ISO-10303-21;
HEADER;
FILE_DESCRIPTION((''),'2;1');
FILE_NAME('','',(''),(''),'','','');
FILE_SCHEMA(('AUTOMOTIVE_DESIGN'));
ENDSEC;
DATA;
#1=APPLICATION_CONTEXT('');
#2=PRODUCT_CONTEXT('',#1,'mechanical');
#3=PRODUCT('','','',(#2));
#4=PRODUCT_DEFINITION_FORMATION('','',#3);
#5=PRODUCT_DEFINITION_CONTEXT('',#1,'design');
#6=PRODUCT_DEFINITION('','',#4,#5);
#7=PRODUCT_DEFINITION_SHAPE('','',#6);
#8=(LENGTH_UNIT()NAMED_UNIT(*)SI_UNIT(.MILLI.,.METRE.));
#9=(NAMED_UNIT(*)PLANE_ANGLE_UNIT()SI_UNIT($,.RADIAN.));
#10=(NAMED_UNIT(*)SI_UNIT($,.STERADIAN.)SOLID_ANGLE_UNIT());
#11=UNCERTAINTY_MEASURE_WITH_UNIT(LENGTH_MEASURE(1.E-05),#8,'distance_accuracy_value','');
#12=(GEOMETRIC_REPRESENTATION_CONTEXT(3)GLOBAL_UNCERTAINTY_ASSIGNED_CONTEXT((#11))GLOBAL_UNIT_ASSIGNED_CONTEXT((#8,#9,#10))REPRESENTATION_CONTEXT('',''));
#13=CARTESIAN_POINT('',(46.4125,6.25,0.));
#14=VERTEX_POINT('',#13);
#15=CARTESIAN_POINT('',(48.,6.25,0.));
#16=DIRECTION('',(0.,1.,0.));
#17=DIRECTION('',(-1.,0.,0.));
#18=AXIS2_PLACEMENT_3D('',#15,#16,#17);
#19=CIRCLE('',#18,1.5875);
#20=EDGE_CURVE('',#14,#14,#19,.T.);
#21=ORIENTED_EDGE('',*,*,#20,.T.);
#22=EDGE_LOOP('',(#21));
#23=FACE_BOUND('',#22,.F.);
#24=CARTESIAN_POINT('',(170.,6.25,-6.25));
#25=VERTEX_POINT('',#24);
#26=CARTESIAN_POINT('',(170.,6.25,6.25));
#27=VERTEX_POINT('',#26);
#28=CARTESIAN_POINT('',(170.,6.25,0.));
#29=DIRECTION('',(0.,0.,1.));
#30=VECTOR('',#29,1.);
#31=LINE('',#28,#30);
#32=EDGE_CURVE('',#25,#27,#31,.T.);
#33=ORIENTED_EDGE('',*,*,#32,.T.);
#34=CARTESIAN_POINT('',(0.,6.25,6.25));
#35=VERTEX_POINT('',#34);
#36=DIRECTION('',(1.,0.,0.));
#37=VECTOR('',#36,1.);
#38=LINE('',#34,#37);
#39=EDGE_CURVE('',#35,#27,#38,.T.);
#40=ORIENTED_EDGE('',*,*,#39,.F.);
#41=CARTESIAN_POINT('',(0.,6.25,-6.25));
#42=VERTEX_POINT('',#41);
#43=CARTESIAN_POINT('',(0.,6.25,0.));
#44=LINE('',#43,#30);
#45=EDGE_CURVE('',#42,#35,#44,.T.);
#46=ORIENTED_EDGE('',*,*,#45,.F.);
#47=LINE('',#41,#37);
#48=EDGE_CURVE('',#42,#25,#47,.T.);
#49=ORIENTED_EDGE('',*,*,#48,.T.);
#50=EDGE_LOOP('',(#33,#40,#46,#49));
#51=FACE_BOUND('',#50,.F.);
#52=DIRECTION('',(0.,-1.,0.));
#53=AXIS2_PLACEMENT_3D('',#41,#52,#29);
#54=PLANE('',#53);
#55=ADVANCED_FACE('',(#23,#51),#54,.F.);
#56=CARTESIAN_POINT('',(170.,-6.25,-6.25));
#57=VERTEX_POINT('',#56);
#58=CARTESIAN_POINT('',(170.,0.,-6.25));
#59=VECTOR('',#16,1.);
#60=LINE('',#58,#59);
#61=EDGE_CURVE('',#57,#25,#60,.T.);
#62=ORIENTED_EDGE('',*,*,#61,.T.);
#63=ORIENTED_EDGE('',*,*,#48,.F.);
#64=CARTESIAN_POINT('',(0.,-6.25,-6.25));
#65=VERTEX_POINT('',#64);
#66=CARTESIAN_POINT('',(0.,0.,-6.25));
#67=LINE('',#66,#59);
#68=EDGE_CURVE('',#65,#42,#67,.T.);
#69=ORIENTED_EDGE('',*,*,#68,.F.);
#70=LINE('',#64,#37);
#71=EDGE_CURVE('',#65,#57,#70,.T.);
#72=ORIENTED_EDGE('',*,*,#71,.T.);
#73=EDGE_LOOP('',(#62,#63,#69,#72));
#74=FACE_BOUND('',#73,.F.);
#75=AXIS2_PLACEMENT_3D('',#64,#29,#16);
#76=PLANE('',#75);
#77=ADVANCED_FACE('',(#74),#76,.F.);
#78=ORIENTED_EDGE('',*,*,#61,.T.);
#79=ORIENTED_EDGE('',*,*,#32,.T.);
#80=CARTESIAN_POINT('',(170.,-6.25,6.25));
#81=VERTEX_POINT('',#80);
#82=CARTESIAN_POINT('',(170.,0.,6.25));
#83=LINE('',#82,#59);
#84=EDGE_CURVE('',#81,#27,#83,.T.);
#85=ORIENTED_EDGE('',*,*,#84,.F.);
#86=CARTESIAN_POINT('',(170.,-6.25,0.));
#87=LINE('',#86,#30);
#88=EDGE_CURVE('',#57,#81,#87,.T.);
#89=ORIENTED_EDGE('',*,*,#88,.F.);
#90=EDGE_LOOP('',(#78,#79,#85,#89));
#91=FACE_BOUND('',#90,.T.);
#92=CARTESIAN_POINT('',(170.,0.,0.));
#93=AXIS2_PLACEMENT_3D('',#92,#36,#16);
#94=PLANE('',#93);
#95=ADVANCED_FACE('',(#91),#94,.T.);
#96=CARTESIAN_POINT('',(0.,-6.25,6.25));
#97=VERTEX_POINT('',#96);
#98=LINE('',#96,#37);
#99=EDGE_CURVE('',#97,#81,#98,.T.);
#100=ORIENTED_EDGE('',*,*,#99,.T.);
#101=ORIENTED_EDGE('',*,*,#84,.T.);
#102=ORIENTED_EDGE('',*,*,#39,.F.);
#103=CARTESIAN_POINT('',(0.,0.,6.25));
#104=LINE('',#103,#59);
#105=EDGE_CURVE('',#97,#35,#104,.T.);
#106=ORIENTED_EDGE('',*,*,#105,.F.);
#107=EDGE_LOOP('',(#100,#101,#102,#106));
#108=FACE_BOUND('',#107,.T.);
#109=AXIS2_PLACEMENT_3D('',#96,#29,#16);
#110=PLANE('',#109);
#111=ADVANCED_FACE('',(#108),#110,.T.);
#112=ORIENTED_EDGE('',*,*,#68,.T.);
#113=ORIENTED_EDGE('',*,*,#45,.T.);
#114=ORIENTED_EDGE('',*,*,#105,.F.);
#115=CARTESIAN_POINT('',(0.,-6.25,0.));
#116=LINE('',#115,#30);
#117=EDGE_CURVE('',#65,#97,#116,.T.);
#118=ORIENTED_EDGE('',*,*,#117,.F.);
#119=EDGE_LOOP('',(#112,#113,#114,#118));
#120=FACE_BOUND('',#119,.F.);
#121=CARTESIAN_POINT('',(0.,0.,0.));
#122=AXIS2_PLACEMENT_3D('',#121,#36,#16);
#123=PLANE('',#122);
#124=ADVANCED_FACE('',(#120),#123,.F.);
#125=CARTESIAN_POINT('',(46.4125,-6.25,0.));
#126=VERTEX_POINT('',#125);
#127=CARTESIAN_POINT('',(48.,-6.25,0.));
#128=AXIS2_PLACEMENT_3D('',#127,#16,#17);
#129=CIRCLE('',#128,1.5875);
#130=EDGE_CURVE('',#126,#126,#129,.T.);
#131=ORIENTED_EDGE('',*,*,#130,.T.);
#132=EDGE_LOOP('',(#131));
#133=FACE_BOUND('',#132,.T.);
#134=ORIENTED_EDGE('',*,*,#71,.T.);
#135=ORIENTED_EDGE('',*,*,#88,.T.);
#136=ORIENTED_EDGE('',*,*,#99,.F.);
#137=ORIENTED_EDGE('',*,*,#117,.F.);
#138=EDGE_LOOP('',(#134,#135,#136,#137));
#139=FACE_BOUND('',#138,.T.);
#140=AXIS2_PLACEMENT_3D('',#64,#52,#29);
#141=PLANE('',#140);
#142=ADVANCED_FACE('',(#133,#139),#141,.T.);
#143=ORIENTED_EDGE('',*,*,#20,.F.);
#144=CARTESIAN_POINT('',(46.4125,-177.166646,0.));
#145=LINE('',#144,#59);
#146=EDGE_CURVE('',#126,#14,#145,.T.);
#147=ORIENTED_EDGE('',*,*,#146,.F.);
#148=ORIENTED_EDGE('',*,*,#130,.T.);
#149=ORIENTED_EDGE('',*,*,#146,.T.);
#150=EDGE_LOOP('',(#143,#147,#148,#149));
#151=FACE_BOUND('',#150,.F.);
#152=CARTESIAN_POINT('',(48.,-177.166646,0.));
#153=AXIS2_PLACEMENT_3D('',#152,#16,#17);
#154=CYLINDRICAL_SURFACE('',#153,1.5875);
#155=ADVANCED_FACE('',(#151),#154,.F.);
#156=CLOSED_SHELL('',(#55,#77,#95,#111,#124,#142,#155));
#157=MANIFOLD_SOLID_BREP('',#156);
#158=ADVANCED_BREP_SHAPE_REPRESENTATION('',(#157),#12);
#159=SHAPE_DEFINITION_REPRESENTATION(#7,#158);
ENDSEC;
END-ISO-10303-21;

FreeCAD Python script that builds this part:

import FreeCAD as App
import Part
import Sketcher
from FreeCAD import Vector

doc = App.newDocument("Part")
body = doc.addObject("PartDesign::Body", "Body")

# Sketch on YZ plane
sketch1 = body.newObject("Sketcher::SketchObject", "Sketch")
sketch1.AttachmentSupport = (doc.getObject("YZ_Plane"), [""])
sketch1.MapMode = "FlatFace"
sketch1.addGeometry([
    Part.LineSegment(Vector(-6, 6, 0), Vector(-6, -6, 0)),
    Part.LineSegment(Vector(-6, -6, 0), Vector(6, -6, 0)),
    Part.LineSegment(Vector(6, -6, 0), Vector(6, 6, 0)),
    Part.LineSegment(Vector(6, 6, 0), Vector(-6, 6, 0)),
], False)
sketch1.addConstraint([
    Sketcher.Constraint("Coincident", 0, 2, 1, 1),
    Sketcher.Constraint("Coincident", 1, 2, 2, 1),
    Sketcher.Constraint("Coincident", 2, 2, 3, 1),
    Sketcher.Constraint("Coincident", 3, 2, 0, 1),
    Sketcher.Constraint("Vertical", 0),
    Sketcher.Constraint("Horizontal", 1),
    Sketcher.Constraint("Vertical", 2),
    Sketcher.Constraint("Horizontal", 3),
    Sketcher.Constraint("Symmetric", 0, 2, 2, 2, -1, 1),
    Sketcher.Constraint("Equal", 3, 0),
    Sketcher.Constraint("DistanceX", 1, 1, 1, 2, 12.5),
])
pad1 = body.newObject("PartDesign::Pad", "Pad")
pad1.Profile = sketch1
pad1.Length = 170

# Sketch on XZ plane
sketch2 = body.newObject("Sketcher::SketchObject", "Sketch001")
sketch2.AttachmentSupport = (doc.getObject("XZ_Plane"), [""])
sketch2.MapMode = "FlatFace"
sketch2.AttachmentOffset = App.Placement(Vector(0, 0, 6.25), App.Rotation())
sketch2.addGeometry(Part.Circle(Vector(48, 0, 0), Vector(0, 0, 1), 1.6), False)
sketch2.addConstraint([
    Sketcher.Constraint("PointOnObject", 0, 3, -1),
    Sketcher.Constraint("Diameter", 0, 3.175),
    Sketcher.Constraint("DistanceX", -1, 1, 0, 3, 48.0),
])
doc.recompute()
hole = body.newObject("PartDesign::Hole", "Hole")
hole.Profile = sketch2
hole.ThreadType = "None"
hole.Diameter = 3.175
hole.DepthType = "ThroughAll"

doc.recompute()
